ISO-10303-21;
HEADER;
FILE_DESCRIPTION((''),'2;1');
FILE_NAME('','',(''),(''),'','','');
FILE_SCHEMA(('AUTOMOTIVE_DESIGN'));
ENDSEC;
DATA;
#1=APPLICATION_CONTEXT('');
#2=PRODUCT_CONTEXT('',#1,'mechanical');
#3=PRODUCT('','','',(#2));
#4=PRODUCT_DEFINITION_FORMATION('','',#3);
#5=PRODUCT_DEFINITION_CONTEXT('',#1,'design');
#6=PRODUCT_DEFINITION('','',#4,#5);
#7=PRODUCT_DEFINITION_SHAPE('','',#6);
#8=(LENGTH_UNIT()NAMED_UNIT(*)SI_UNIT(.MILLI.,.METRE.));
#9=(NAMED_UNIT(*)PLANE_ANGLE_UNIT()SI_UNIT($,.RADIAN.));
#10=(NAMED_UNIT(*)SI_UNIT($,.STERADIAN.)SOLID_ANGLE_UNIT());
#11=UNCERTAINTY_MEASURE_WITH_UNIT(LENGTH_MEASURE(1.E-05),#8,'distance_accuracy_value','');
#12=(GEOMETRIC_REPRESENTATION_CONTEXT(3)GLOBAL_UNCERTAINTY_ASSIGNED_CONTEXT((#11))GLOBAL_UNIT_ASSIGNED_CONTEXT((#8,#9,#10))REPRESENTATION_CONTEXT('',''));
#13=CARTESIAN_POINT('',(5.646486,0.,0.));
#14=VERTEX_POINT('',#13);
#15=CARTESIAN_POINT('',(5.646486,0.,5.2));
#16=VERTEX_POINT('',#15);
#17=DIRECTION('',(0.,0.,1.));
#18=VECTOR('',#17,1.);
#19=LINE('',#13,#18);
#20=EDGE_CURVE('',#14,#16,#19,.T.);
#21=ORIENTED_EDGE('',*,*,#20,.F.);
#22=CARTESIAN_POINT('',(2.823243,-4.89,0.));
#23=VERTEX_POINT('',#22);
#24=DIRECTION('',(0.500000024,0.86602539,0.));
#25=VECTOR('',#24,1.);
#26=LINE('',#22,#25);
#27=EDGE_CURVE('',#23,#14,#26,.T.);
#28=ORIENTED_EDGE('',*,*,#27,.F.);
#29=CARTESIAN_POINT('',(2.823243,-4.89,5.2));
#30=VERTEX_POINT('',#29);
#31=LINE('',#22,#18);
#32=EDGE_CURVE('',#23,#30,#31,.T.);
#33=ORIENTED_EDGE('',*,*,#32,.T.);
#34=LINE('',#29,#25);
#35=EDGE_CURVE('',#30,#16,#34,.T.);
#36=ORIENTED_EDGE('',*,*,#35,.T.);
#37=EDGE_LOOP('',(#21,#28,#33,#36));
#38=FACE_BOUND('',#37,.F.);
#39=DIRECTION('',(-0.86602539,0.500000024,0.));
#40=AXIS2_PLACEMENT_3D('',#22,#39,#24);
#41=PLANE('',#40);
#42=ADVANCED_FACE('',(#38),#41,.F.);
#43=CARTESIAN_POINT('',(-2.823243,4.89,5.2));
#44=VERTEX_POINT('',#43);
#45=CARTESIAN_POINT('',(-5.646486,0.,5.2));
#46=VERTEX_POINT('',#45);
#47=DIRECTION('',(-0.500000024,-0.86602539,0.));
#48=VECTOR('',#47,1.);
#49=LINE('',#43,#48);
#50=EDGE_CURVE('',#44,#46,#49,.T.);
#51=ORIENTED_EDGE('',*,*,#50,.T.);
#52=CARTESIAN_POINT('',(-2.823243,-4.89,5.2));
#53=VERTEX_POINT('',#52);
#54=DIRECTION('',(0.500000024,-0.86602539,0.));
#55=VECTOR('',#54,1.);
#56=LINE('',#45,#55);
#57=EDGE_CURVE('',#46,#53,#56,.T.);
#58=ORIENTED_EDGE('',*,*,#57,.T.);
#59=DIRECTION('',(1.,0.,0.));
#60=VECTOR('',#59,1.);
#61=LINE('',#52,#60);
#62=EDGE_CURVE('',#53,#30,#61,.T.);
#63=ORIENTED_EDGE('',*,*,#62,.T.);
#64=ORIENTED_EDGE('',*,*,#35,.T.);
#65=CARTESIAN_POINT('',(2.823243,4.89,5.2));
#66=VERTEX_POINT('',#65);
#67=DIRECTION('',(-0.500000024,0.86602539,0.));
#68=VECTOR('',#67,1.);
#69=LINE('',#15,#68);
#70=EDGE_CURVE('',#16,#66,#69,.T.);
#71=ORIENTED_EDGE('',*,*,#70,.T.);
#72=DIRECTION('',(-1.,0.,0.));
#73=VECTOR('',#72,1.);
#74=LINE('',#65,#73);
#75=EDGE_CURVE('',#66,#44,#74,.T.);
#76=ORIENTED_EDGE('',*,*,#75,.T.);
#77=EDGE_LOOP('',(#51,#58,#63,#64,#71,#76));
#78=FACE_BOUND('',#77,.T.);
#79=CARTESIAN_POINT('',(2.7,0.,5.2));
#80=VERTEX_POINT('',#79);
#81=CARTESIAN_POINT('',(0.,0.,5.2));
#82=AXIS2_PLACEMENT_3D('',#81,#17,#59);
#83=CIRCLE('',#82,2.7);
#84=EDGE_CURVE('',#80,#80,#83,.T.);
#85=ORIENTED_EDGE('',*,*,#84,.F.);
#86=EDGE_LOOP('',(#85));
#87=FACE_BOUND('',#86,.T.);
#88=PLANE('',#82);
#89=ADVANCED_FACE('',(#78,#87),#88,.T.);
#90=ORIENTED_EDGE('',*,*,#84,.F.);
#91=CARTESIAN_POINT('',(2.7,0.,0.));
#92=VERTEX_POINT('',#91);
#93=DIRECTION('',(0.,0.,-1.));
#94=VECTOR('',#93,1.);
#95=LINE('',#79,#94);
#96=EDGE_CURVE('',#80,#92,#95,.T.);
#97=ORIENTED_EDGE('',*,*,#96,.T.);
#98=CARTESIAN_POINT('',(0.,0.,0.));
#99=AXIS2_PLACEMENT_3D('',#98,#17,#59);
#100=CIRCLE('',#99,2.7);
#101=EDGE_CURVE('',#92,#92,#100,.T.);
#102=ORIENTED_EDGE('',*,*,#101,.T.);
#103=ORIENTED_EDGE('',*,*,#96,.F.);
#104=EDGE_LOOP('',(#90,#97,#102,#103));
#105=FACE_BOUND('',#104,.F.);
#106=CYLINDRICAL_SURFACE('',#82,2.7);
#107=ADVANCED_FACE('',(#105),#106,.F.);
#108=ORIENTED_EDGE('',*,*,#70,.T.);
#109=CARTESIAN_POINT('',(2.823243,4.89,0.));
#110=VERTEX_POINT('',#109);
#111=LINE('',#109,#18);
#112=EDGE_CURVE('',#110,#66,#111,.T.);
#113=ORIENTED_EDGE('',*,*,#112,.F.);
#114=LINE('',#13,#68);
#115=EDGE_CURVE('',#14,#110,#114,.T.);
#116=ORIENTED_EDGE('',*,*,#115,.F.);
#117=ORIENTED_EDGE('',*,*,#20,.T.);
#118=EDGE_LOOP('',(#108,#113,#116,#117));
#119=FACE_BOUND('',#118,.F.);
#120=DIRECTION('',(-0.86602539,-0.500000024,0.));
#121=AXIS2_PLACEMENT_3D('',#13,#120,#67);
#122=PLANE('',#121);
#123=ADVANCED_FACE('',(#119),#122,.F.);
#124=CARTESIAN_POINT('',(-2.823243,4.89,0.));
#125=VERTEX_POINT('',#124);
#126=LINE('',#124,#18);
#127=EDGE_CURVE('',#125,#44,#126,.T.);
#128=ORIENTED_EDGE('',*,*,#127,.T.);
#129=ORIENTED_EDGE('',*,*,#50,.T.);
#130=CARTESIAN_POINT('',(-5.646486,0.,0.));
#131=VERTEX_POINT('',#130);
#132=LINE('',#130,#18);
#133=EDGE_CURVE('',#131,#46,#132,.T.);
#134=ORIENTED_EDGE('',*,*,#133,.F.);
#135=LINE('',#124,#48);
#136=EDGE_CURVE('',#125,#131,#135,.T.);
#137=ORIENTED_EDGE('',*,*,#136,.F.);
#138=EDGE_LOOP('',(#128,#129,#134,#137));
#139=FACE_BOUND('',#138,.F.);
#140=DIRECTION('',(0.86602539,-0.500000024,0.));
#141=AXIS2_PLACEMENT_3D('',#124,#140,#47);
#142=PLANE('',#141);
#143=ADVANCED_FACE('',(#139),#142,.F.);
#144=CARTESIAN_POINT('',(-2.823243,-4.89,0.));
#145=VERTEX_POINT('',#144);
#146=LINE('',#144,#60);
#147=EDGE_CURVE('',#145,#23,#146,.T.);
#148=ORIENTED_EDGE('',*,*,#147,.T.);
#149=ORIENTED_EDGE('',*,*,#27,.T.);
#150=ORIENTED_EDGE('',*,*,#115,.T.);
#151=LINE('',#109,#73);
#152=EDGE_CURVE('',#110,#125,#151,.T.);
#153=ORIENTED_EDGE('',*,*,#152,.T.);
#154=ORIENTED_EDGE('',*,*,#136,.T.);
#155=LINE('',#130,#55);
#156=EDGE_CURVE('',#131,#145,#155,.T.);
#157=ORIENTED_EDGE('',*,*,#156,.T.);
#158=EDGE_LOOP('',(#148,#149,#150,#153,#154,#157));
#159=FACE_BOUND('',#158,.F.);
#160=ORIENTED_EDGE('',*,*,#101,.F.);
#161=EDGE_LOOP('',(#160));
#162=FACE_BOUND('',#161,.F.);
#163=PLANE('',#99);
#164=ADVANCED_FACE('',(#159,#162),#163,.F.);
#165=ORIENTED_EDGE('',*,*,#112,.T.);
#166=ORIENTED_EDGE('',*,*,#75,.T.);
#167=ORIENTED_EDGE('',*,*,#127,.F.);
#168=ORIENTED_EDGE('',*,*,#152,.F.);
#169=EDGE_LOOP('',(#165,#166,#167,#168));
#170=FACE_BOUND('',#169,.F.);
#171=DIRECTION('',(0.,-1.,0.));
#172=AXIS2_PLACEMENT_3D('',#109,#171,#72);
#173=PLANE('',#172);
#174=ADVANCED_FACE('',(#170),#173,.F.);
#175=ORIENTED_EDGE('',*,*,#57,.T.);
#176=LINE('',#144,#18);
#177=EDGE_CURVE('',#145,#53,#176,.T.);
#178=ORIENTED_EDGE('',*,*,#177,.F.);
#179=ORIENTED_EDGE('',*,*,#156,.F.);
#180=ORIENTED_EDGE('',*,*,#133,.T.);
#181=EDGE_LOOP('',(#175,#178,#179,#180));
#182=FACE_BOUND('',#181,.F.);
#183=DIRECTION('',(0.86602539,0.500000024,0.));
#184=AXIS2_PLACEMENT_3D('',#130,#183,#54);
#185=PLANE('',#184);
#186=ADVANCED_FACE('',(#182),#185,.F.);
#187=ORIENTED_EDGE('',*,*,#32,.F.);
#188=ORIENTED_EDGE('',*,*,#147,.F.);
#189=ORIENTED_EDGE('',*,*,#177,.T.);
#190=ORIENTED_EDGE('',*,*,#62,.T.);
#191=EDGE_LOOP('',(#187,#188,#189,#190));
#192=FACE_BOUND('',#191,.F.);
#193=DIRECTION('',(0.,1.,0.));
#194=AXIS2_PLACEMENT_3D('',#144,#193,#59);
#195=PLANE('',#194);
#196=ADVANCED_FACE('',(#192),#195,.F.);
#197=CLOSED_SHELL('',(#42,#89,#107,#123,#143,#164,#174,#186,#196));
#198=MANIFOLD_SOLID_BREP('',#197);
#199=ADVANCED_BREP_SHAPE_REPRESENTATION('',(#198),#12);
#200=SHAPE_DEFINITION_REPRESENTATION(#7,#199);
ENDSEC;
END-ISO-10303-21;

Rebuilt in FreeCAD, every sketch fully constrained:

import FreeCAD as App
import Part
import Sketcher

V = App.Vector
Q = App.Units.Quantity


def add_polygon(sketch, points):
    """Adds a closed chain of lines whose ends are joined by coincident constraints."""
    first, n = sketch.GeometryCount, len(points)
    for a, b in zip(points, points[1:] + points[:1]):
        sketch.addGeometry(Part.LineSegment(App.Vector(*a, 0), App.Vector(*b, 0)), False)
    for i in range(n):
        sketch.addConstraint(Sketcher.Constraint("Coincident", first + i, 2, first + (i + 1) % n, 1))

doc = App.newDocument("Part")
body = doc.addObject("PartDesign::Body", "Body")

# Sketch on XY plane
sketch1 = body.newObject("Sketcher::SketchObject", "Sketch")
sketch1.AttachmentSupport = (doc.getObject("XY_Plane"), [""])
sketch1.MapMode = "FlatFace"
add_polygon(sketch1, [(3, 5), (-3, 5), (-6, 0), (-3, -5), (3, -5), (6, 0)])  # lines 0-5
sketch1.addConstraint(Sketcher.Constraint("Horizontal", 0))
sketch1.addConstraint(Sketcher.Constraint("Horizontal", 3))
sketch1.addConstraint(Sketcher.Constraint("Symmetric", 0, 2, 3, 2, -1, 1))
sketch1.addConstraint(Sketcher.Constraint("Symmetric", 1, 2, 4, 2, -1, 1))
sketch1.addConstraint(Sketcher.Constraint("PointOnObject", 1, 2, -1))
sketch1.addConstraint(Sketcher.Constraint("Parallel", 2, 5))
sketch1.addConstraint(Sketcher.Constraint("Vertical", 0, 2, 2, 2))
sketch1.addConstraint(Sketcher.Constraint("Angle", 1, Q("-120.000002 deg")))
sketch1.addConstraint(Sketcher.Constraint("DistanceY", -1, 1, 0, 2, Q("4.89 mm")))
sketch1.addConstraint(Sketcher.Constraint("DistanceX", 0, 2, 0, 1, Q("5.646486 mm")))
pad1 = body.newObject("PartDesign::Pad", "Pad")
pad1.Profile = sketch1
pad1.Length = 5.2

# Sketch on XY plane
sketch2 = body.newObject("Sketcher::SketchObject", "Sketch001")
sketch2.AttachmentSupport = (doc.getObject("XY_Plane"), [""])
sketch2.MapMode = "FlatFace"
sketch2.AttachmentOffset = App.Placement(V(0, 0, 5.2), App.Rotation())
sketch2.addGeometry(Part.Circle(V(0, 0, 0), V(0, 0, 1), 2.7), False)
sketch2.addConstraint(Sketcher.Constraint("Coincident", 0, 3, -1, 1))
sketch2.addConstraint(Sketcher.Constraint("Diameter", 0, Q("5.4 mm")))
pocket1 = body.newObject("PartDesign::Pocket", "Pocket")
pocket1.Profile = sketch2
pocket1.Type = "ThroughAll"

doc.recompute()
